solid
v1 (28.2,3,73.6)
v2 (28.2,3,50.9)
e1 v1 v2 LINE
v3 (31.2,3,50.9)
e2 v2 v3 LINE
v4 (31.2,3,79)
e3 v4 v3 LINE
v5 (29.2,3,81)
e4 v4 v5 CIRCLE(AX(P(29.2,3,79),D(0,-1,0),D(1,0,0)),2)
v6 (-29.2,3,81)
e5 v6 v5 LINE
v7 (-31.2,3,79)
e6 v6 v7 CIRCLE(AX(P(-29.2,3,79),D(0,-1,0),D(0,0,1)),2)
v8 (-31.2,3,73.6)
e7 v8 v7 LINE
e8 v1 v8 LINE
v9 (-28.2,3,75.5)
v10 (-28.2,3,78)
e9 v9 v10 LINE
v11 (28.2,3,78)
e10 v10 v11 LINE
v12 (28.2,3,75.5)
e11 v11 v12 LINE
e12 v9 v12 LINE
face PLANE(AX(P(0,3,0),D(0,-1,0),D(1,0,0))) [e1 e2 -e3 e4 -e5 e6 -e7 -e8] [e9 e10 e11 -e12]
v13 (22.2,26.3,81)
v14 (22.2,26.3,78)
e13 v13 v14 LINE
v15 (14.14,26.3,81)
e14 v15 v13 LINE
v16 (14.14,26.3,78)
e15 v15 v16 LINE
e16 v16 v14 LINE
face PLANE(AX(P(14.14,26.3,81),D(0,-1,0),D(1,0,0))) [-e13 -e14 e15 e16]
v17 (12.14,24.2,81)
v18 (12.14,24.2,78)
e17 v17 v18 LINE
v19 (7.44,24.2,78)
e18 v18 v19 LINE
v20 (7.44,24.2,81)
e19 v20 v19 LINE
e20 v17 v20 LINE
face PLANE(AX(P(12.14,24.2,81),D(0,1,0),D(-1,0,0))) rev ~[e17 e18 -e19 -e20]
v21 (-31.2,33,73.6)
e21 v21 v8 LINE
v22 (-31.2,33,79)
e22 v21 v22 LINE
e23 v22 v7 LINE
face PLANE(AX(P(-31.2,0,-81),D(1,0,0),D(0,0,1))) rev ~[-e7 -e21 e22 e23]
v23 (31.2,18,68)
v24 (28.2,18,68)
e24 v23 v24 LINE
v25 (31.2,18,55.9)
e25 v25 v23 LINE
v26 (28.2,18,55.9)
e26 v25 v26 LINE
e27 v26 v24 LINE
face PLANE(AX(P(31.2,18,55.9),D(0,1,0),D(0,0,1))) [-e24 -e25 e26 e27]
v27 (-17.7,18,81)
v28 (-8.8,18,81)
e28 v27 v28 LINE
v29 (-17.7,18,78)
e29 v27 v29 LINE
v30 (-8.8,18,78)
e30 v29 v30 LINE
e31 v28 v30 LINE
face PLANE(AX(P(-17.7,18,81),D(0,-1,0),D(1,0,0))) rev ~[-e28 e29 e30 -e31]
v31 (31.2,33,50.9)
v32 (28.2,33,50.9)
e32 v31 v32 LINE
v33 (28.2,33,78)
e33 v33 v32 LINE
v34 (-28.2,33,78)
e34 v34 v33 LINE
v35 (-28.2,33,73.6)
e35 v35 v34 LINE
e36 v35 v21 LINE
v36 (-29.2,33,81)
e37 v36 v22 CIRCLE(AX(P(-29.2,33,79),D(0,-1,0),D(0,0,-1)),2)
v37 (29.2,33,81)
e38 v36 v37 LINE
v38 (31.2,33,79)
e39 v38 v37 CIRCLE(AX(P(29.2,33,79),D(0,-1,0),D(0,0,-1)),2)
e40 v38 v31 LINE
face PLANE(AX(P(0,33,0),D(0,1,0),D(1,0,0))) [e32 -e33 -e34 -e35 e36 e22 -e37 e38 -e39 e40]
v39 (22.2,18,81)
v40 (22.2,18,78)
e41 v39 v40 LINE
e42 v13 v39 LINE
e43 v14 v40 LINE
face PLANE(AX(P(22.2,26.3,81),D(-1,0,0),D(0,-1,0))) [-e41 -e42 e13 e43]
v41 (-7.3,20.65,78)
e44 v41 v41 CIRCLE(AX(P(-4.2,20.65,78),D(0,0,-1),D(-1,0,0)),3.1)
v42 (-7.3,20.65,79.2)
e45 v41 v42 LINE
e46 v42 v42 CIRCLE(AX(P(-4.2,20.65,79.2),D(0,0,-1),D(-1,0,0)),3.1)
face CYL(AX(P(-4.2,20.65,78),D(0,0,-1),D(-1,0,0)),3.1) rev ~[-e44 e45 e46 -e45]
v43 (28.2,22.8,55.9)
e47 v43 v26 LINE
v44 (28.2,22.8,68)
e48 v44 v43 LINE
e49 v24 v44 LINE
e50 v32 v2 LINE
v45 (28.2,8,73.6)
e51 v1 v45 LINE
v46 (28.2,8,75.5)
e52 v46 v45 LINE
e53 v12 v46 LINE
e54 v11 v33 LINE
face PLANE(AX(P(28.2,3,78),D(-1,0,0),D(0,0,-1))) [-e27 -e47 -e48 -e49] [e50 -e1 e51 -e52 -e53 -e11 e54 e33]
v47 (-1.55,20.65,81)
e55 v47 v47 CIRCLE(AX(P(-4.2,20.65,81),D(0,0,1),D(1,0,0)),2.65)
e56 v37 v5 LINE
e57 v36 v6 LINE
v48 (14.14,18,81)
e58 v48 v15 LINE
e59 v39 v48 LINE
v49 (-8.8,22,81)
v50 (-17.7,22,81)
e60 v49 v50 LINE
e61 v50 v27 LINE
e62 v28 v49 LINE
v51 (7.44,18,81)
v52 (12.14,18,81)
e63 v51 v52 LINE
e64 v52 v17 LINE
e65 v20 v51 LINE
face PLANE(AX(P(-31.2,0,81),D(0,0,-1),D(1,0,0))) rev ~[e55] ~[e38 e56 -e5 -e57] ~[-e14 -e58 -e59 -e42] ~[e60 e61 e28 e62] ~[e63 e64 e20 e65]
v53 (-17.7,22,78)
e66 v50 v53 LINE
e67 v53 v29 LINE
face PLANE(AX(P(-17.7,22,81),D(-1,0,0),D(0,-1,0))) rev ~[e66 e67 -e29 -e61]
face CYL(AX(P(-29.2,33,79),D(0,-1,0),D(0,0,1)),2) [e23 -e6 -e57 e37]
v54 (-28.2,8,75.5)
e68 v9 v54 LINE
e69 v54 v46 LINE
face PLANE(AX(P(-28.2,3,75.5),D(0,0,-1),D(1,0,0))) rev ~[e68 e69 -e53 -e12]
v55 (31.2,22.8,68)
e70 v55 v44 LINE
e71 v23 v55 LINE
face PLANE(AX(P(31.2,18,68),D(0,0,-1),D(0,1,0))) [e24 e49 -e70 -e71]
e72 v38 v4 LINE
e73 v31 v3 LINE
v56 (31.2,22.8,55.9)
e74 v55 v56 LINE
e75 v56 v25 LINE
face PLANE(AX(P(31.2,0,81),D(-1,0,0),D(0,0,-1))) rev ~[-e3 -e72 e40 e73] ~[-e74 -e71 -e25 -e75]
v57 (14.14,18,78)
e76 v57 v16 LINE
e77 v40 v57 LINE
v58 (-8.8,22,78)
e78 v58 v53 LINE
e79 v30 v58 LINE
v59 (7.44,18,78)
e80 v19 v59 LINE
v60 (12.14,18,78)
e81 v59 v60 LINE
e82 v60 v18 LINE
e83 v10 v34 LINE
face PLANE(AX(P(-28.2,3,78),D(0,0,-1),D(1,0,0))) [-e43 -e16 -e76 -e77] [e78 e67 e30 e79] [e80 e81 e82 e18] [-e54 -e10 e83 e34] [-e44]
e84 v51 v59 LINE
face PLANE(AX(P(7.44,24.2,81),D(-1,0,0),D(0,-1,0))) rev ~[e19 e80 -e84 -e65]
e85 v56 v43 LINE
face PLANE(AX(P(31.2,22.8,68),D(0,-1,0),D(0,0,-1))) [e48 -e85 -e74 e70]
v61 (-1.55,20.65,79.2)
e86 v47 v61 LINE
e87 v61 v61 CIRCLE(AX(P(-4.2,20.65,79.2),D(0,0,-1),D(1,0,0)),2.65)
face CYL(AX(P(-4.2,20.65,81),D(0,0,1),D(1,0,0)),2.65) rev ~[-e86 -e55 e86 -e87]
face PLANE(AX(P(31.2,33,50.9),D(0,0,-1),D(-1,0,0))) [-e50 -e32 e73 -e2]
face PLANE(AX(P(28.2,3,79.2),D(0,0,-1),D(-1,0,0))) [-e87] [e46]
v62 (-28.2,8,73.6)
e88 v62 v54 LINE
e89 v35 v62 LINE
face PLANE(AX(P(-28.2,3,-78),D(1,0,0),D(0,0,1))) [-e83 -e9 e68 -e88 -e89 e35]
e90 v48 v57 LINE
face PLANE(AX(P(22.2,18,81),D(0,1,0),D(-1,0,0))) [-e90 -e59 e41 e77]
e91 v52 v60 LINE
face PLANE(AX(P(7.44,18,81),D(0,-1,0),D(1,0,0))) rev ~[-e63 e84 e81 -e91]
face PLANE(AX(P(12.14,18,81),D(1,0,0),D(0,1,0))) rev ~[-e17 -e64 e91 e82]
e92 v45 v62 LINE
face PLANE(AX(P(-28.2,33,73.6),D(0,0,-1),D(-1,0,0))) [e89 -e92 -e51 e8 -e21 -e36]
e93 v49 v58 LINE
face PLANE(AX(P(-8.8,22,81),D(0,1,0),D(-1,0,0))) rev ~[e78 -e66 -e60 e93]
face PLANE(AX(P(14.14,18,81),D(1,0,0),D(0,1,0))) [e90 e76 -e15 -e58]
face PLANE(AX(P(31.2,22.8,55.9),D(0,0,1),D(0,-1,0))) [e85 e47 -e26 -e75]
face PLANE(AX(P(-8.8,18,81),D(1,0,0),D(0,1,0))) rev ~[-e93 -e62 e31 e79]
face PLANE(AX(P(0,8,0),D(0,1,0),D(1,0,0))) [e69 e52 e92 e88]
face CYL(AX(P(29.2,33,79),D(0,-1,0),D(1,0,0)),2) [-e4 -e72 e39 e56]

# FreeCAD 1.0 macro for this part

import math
import FreeCAD as App
import Part
import Sketcher

V = App.Vector


def edges_at(feature, points):
    """Names of the edges that pass closest to the given points."""
    edges = feature.Shape.Edges
    near = lambda p: min(range(len(edges)), key=lambda i: edges[i].distToShape(Part.Vertex(*p))[0])
    return sorted({f"Edge{near(p) + 1}" for p in points})


def add_polygon(sketch, points):
    """Adds a closed chain of lines whose ends are joined by coincident constraints."""
    first, n = sketch.GeometryCount, len(points)
    for a, b in zip(points, points[1:] + points[:1]):
        sketch.addGeometry(Part.LineSegment(App.Vector(*a, 0), App.Vector(*b, 0)), False)
    for i in range(n):
        sketch.addConstraint(Sketcher.Constraint("Coincident", first + i, 2, first + (i + 1) % n, 1))

doc = App.newDocument("Part")
params = doc.addObject("Spreadsheet::Sheet", "Params")
for row, (alias, value) in enumerate([
    ("sketch1_height", "162 mm"),
    ("sketch1_width", "62.4 mm"),
    ("pad1_length", "3 mm"),
    ("sketch2_height", "162 mm"),
    ("sketch2_width", "62.4 mm"),
    ("pad2_length", "30 mm"),
    ("fillet_radius", "2 mm"),
    ("sketch3_height", "1.9 mm"),
    ("sketch3_height2", "2.5 mm"),
    ("sketch3_width", "39.2 mm"),
    ("pad3_length", "5 mm"),
    ("sketch4_width", "2 mm"),
    ("sketch4_width2", "16.6 mm"),
    ("sketch4_width3", "10.5 mm"),
    ("sketch4_height", "36.5 mm"),
    ("sketch4_height2", "18.6 mm"),
    ("pad4_length", "1 mm"),
    ("sketch5_diameter", "5.3 mm"),
    ("sketch5_height", "4 mm"),
    ("sketch5_width", "8.9 mm"),
    ("sketch5_width2", "4.7 mm"),
    ("sketch5_height2", "8.3 mm"),
    ("pocket1_length", "3 mm"),
    ("sketch6_diameter", "6.2 mm"),
    ("sketch6_diameter2", "5.3 mm"),
    ("pocket2_length", "1.2 mm"),
    ("sketch7_height", "9.6 mm"),
    ("sketch7_width", "56.4 mm"),
    ("pad5_length", "6 mm"),
    ("sketch8_width", "3 mm"),
    ("sketch8_height", "3.4 mm"),
    ("pocket3_length", "56.4 mm"),
    ("fillet2_radius", "1 mm"),
    ("sketch9_width", "4.8 mm"),
    ("sketch9_height", "12.1 mm"),
    ("pocket4_length", "3 mm"),
    ("sketch10_height", "200 mm"),
    ("sketch10_width", "3 mm"),
    ("sketch10_width2", "62.4 mm"),
    ("sketch10_height2", "222.7 mm"),
    ("sketch11_radius", "2 mm"),
    ("sketch11_width", "3 mm"),
    ("sketch11_width2", "59.4 mm"),
    ("sketch11_height", "22.7 mm"),
    ("sketch11_height2", "28.1 mm"),
    ("pocket6_length", "3 mm"),
], start=1):
    params.set(f"A{row}", alias)
    params.set(f"B{row}", "=" + value)
    params.setAlias(f"B{row}", alias)

body = doc.addObject("PartDesign::Body", "Body")

sketch1 = body.newObject("Sketcher::SketchObject", "Sketch")
sketch1.AttachmentSupport = (doc.getObject("XZ_Plane"), [""])
sketch1.MapMode = "FlatFace"
add_polygon(sketch1, [(31, 81), (31, -81), (-31, -81), (-31, 81)])
sketch1.addConstraint(Sketcher.Constraint("Vertical", 0))
sketch1.addConstraint(Sketcher.Constraint("Horizontal", 1))
sketch1.addConstraint(Sketcher.Constraint("Vertical", 2))
sketch1.addConstraint(Sketcher.Constraint("Horizontal", 3))
sketch1.addConstraint(Sketcher.Constraint("Symmetric", 0, 2, 2, 2, -1, 1))
sketch1.addConstraint(Sketcher.Constraint("DistanceY", 0, 2, 0, 1, 162.0))
sketch1.addConstraint(Sketcher.Constraint("DistanceX", 1, 2, 1, 1, 62.4))
sketch1.setExpression("Constraints[9]", "Params.sketch1_height")
sketch1.setExpression("Constraints[10]", "Params.sketch1_width")
pad1 = body.newObject("PartDesign::Pad", "Pad")
pad1.Profile = sketch1
pad1.setExpression("Length", "Params.pad1_length")
pad1.Reversed = True

sketch2 = body.newObject("Sketcher::SketchObject", "Sketch001")
sketch2.AttachmentSupport = (doc.getObject("XZ_Plane"), [""])
sketch2.MapMode = "FlatFace"
sketch2.AttachmentOffset = App.Placement(V(0, 0, -3), App.Rotation())
add_polygon(sketch2, [(31, -81), (-31, -81), (-31, 81), (31, 81)])
add_polygon(sketch2, [(-28, -78), (28, -78), (28, 78), (-28, 78)])
sketch2.addConstraint(Sketcher.Constraint("Horizontal", 0))
sketch2.addConstraint(Sketcher.Constraint("Vertical", 1))
sketch2.addConstraint(Sketcher.Constraint("Horizontal", 2))
sketch2.addConstraint(Sketcher.Constraint("Vertical", 3))
sketch2.addConstraint(Sketcher.Constraint("Horizontal", 4))
sketch2.addConstraint(Sketcher.Constraint("Vertical", 5))
sketch2.addConstraint(Sketcher.Constraint("Horizontal", 6))
sketch2.addConstraint(Sketcher.Constraint("Vertical", 7))
sketch2.addConstraint(Sketcher.Constraint("Symmetric", 0, 2, 2, 2, -1, 1))
sketch2.addConstraint(Sketcher.Constraint("Symmetric", 4, 2, 6, 2, -1, 1))
sketch2.addConstraint(Sketcher.Constraint("DistanceX", 4, 2, 3, 2, 3.0))
sketch2.addConstraint(Sketcher.Constraint("DistanceY", 3, 2, 4, 2, 3.0))
sketch2.addConstraint(Sketcher.Constraint("DistanceY", 1, 1, 1, 2, 162.0))
sketch2.addConstraint(Sketcher.Constraint("DistanceX", 0, 2, 0, 1, 62.4))
sketch2.setExpression("Constraints[20]", "Params.sketch2_height")
sketch2.setExpression("Constraints[21]", "Params.sketch2_width")
pad2 = body.newObject("PartDesign::Pad", "Pad001")
pad2.Profile = sketch2
pad2.setExpression("Length", "Params.pad2_length")
pad2.Reversed = True
doc.recompute()

fillet = body.newObject("PartDesign::Fillet", "Fillet")
fillet.Base = (pad2, edges_at(pad2, [
    (31.2, 16.5, 81),
    (31.2, 16.5, -81),
    (-31.2, 16.5, 81),
    (-31.2, 16.5, -81),
]))
fillet.setExpression("Radius", "Params.fillet_radius")

sketch3 = body.newObject("Sketcher::SketchObject", "Sketch002")
sketch3.AttachmentSupport = (doc.getObject("XZ_Plane"), [""])
sketch3.MapMode = "FlatFace"
sketch3.AttachmentOffset = App.Placement(V(0, 0, -3), App.Rotation())
add_polygon(sketch3, [(28.2, -37.2), (28.2, -39.1), (-11, -39.1), (-11, -32.8), (28.2, -32.8), (28.2, -34.7), (-9, -34.7), (-9, -37.2)])
add_polygon(sketch3, [(28.2, 73.6), (-28.2, 73.6), (-28.2, 75.5), (28.2, 75.5)])
sketch3.addConstraint(Sketcher.Constraint("Vertical", 0))
sketch3.addConstraint(Sketcher.Constraint("Horizontal", 1))
sketch3.addConstraint(Sketcher.Constraint("Vertical", 2))
sketch3.addConstraint(Sketcher.Constraint("Horizontal", 3))
sketch3.addConstraint(Sketcher.Constraint("Vertical", 4))
sketch3.addConstraint(Sketcher.Constraint("Horizontal", 5))
sketch3.addConstraint(Sketcher.Constraint("Vertical", 6))
sketch3.addConstraint(Sketcher.Constraint("Horizontal", 7))
sketch3.addConstraint(Sketcher.Constraint("Horizontal", 8))
sketch3.addConstraint(Sketcher.Constraint("Vertical", 9))
sketch3.addConstraint(Sketcher.Constraint("Horizontal", 10))
sketch3.addConstraint(Sketcher.Constraint("Vertical", 11))
sketch3.addConstraint(Sketcher.Constraint("Vertical", 0, 2, 3, 2))
sketch3.addConstraint(Sketcher.Constraint("Vertical", 7, 2, 10, 2))
sketch3.addConstraint(Sketcher.Constraint("Equal", 0, 4))
sketch3.addConstraint(Sketcher.Constraint("Equal", 4, 9))
sketch3.addConstraint(Sketcher.Constraint("DistanceY", 0, 2, 0, 1, 1.9))
sketch3.addConstraint(Sketcher.Constraint("DistanceY", 6, 2, 6, 1, 2.5))
sketch3.addConstraint(Sketcher.Constraint("DistanceX", 2, 2, 5, 2, 2.0))
sketch3.addConstraint(Sketcher.Constraint("DistanceX", 8, 2, 2, 2, 17.2))
sketch3.addConstraint(Sketcher.Constraint("DistanceY", 2, 2, 8, 2, 106.4))
sketch3.addConstraint(Sketcher.Constraint("DistanceX", 1, 2, 1, 1, 39.2))
sketch3.addConstraint(Sketcher.Constraint("DistanceX", 1, 2, -1, 1, 11.0))
sketch3.addConstraint(Sketcher.Constraint("DistanceY", 0, 2, -1, 1, 39.1))
sketch3.setExpression("Constraints[28]", "Params.sketch3_height")
sketch3.setExpression("Constraints[29]", "Params.sketch3_height2")
sketch3.setExpression("Constraints[33]", "Params.sketch3_width")
pad3 = body.newObject("PartDesign::Pad", "Pad002")
pad3.Profile = sketch3
pad3.setExpression("Length", "Params.pad3_length")
pad3.Reversed = True

sketch4 = body.newObject("Sketcher::SketchObject", "Sketch003")
sketch4.AttachmentSupport = (doc.getObject("XZ_Plane"), [""])
sketch4.MapMode = "FlatFace"
sketch4.AttachmentOffset = App.Placement(V(0, 0, -3), App.Rotation())
add_polygon(sketch4, [(-28.2, -55), (-11, -55), (-11, -39.1), (-9, -39.1), (-9, -75.6), (7.6, -75.6), (7.6, -39.1), (9.6, -39.1), (9.6, -75.6), (26.2, -75.6), (26.2, -39.1), (28.2, -39.1), (28.2, -78), (-28.2, -78)])
add_polygon(sketch4, [(-21.5, -75.6), (-11, -75.6), (-11, -57), (-21.5, -57)])
sketch4.addConstraint(Sketcher.Constraint("Horizontal", 0))
sketch4.addConstraint(Sketcher.Constraint("Vertical", 1))
sketch4.addConstraint(Sketcher.Constraint("Horizontal", 2))
sketch4.addConstraint(Sketcher.Constraint("Vertical", 3))
sketch4.addConstraint(Sketcher.Constraint("Horizontal", 4))
sketch4.addConstraint(Sketcher.Constraint("Vertical", 5))
sketch4.addConstraint(Sketcher.Constraint("Horizontal", 6))
sketch4.addConstraint(Sketcher.Constraint("Vertical", 7))
sketch4.addConstraint(Sketcher.Constraint("Horizontal", 8))
sketch4.addConstraint(Sketcher.Constraint("Vertical", 9))
sketch4.addConstraint(Sketcher.Constraint("Horizontal", 10))
sketch4.addConstraint(Sketcher.Constraint("Vertical", 11))
sketch4.addConstraint(Sketcher.Constraint("Horizontal", 12))
sketch4.addConstraint(Sketcher.Constraint("Vertical", 13))
sketch4.addConstraint(Sketcher.Constraint("Horizontal", 14))
sketch4.addConstraint(Sketcher.Constraint("Vertical", 15))
sketch4.addConstraint(Sketcher.Constraint("Horizontal", 16))
sketch4.addConstraint(Sketcher.Constraint("Vertical", 17))
sketch4.addConstraint(Sketcher.Constraint("Horizontal", 2, 2, 5, 2))
sketch4.addConstraint(Sketcher.Constraint("Horizontal", 4, 2, 7, 2))
sketch4.addConstraint(Sketcher.Constraint("Horizontal", 6, 2, 9, 2))
sketch4.addConstraint(Sketcher.Constraint("Horizontal", 8, 2, 14, 2))
sketch4.addConstraint(Sketcher.Constraint("Vertical", 1, 2, 14, 2))
sketch4.addConstraint(Sketcher.Constraint("Equal", 2, 6))
sketch4.addConstraint(Sketcher.Constraint("Equal", 4, 8))
sketch4.addConstraint(Sketcher.Constraint("Equal", 6, 10))
sketch4.addConstraint(Sketcher.Constraint("DistanceX", 2, 1, 2, 2, 2.0))
sketch4.addConstraint(Sketcher.Constraint("DistanceX", 4, 1, 4, 2, 16.6))
sketch4.addConstraint(Sketcher.Constraint("DistanceX", 14, 1, 14, 2, 10.5))
sketch4.addConstraint(Sketcher.Constraint("DistanceY", 3, 2, 3, 1, 36.5))
sketch4.addConstraint(Sketcher.Constraint("DistanceY", 15, 1, 15, 2, 18.6))
sketch4.addConstraint(Sketcher.Constraint("DistanceY", 15, 2, 0, 2, 2.0))
sketch4.addConstraint(Sketcher.Constraint("DistanceY", 11, 2, 8, 2, 2.4))
sketch4.addConstraint(Sketcher.Constraint("DistanceX", 0, 1, 0, 2, 17.2))
sketch4.addConstraint(Sketcher.Constraint("DistanceX", 0, 2, -1, 1, 11.0))
sketch4.addConstraint(Sketcher.Constraint("DistanceY", 0, 2, -1, 1, 55.0))
sketch4.setExpression("Constraints[44]", "Params.sketch4_width")
sketch4.setExpression("Constraints[45]", "Params.sketch4_width2")
sketch4.setExpression("Constraints[46]", "Params.sketch4_width3")
sketch4.setExpression("Constraints[47]", "Params.sketch4_height")
sketch4.setExpression("Constraints[48]", "Params.sketch4_height2")
pad4 = body.newObject("PartDesign::Pad", "Pad003")
pad4.Profile = sketch4
pad4.setExpression("Length", "Params.pad4_length")
pad4.Reversed = True

sketch5 = body.newObject("Sketcher::SketchObject", "Sketch004")
sketch5.AttachmentSupport = (doc.getObject("XY_Plane"), [""])
sketch5.MapMode = "FlatFace"
sketch5.AttachmentOffset = App.Placement(V(0, 0, 81), App.Rotation())
add_polygon(sketch5, [(-17.7, 22), (-17.7, 18), (-8.8, 18), (-8.8, 22)])
add_polygon(sketch5, [(14.1, 18), (22.2, 18), (22.2, 26.3), (14.1, 26.3)])
sketch5.addGeometry(Part.Circle(V(-4.2, 20.6, 0), V(0, 0, 1), 2.6), False)
add_polygon(sketch5, [(7.4, 24.2), (7.4, 18), (12.1, 18), (12.1, 24.2)])
sketch5.addConstraint(Sketcher.Constraint("Vertical", 0))
sketch5.addConstraint(Sketcher.Constraint("Horizontal", 1))
sketch5.addConstraint(Sketcher.Constraint("Vertical", 2))
sketch5.addConstraint(Sketcher.Constraint("Horizontal", 3))
sketch5.addConstraint(Sketcher.Constraint("Horizontal", 4))
sketch5.addConstraint(Sketcher.Constraint("Vertical", 5))
sketch5.addConstraint(Sketcher.Constraint("Horizontal", 6))
sketch5.addConstraint(Sketcher.Constraint("Vertical", 7))
sketch5.addConstraint(Sketcher.Constraint("Vertical", 9))
sketch5.addConstraint(Sketcher.Constraint("Horizontal", 10))
sketch5.addConstraint(Sketcher.Constraint("Vertical", 11))
sketch5.addConstraint(Sketcher.Constraint("Horizontal", 12))
sketch5.addConstraint(Sketcher.Constraint("Horizontal", 1, 2, 4, 2))
sketch5.addConstraint(Sketcher.Constraint("Horizontal", 7, 2, 9, 2))
sketch5.addConstraint(Sketcher.Constraint("Diameter", 8, 5.3))
sketch5.addConstraint(Sketcher.Constraint("DistanceY", 0, 2, 0, 1, 4.0))
sketch5.addConstraint(Sketcher.Constraint("DistanceX", 1, 1, 1, 2, 8.9))
sketch5.addConstraint(Sketcher.Constraint("DistanceX", 10, 1, 10, 2, 4.7))
sketch5.addConstraint(Sketcher.Constraint("DistanceY", 5, 1, 5, 2, 8.3))
sketch5.addConstraint(Sketcher.Constraint("DistanceY", 9, 2, 9, 1, 6.2))
sketch5.addConstraint(Sketcher.Constraint("DistanceY", -1, 1, 0, 2, 18.0))
sketch5.addConstraint(Sketcher.Constraint("DistanceX", 10, 2, 7, 2, 2.0))
sketch5.addConstraint(Sketcher.Constraint("DistanceX", 4, 1, 4, 2, 8.06))
sketch5.addConstraint(Sketcher.Constraint("DistanceX", 0, 2, 8, 3, 13.5))
sketch5.addConstraint(Sketcher.Constraint("DistanceX", 1, 2, 4, 2, 31.0))
sketch5.addConstraint(Sketcher.Constraint("DistanceX", 8, 3, -1, 1, 4.2))
sketch5.addConstraint(Sketcher.Constraint("DistanceY", -1, 1, 8, 3, 20.65))
sketch5.setExpression("Constraints[26]", "Params.sketch5_diameter")
sketch5.setExpression("Constraints[27]", "Params.sketch5_height")
sketch5.setExpression("Constraints[28]", "Params.sketch5_width")
sketch5.setExpression("Constraints[29]", "Params.sketch5_width2")
sketch5.setExpression("Constraints[30]", "Params.sketch5_height2")
pocket1 = body.newObject("PartDesign::Pocket", "Pocket")
pocket1.Profile = sketch5
pocket1.setExpression("Length", "Params.pocket1_length")

sketch6 = body.newObject("Sketcher::SketchObject", "Sketch005")
sketch6.AttachmentSupport = (doc.getObject("XY_Plane"), [""])
sketch6.MapMode = "FlatFace"
sketch6.AttachmentOffset = App.Placement(V(0, 0, 78), App.Rotation())
sketch6.addGeometry(Part.Circle(V(-4.2, 20.6, 0), V(0, 0, 1), 3.1), False)
sketch6.addGeometry(Part.Circle(V(-4.2, 20.6, 0), V(0, 0, 1), 2.6), False)
sketch6.addConstraint(Sketcher.Constraint("Coincident", 1, 3, 0, 3))
sketch6.addConstraint(Sketcher.Constraint("Diameter", 0, 6.2))
sketch6.addConstraint(Sketcher.Constraint("Diameter", 1, 5.3))
sketch6.addConstraint(Sketcher.Constraint("DistanceX", 0, 3, -1, 1, 4.2))
sketch6.addConstraint(Sketcher.Constraint("DistanceY", -1, 1, 0, 3, 20.65))
sketch6.setExpression("Constraints[1]", "Params.sketch6_diameter")
sketch6.setExpression("Constraints[2]", "Params.sketch6_diameter2")
pocket2 = body.newObject("PartDesign::Pocket", "Pocket001")
pocket2.Profile = sketch6
pocket2.setExpression("Length", "Params.pocket2_length")
pocket2.Reversed = True

sketch7 = body.newObject("Sketcher::SketchObject", "Sketch006")
sketch7.AttachmentSupport = (doc.getObject("XY_Plane"), [""])
sketch7.MapMode = "FlatFace"
sketch7.AttachmentOffset = App.Placement(V(0, 0, -81), App.Rotation())
add_polygon(sketch7, [(-28, 23), (28, 23), (28, 13), (-28, 13)])
sketch7.addConstraint(Sketcher.Constraint("Horizontal", 0))
sketch7.addConstraint(Sketcher.Constraint("Vertical", 1))
sketch7.addConstraint(Sketcher.Constraint("Horizontal", 2))
sketch7.addConstraint(Sketcher.Constraint("Vertical", 3))
sketch7.addConstraint(Sketcher.Constraint("DistanceY", 1, 2, 1, 1, 9.6))
sketch7.addConstraint(Sketcher.Constraint("DistanceY", -1, 1, 0, 2, 23.0))
sketch7.addConstraint(Sketcher.Constraint("DistanceX", 0, 1, 0, 2, 56.4))
sketch7.addConstraint(Sketcher.Constraint("DistanceX", -1, 1, 0, 2, 28.2))
sketch7.setExpression("Constraints[8]", "Params.sketch7_height")
sketch7.setExpression("Constraints[10]", "Params.sketch7_width")
pad5 = body.newObject("PartDesign::Pad", "Pad004")
pad5.Profile = sketch7
pad5.setExpression("Length", "Params.pad5_length")
pad5.Reversed = True

sketch8 = body.newObject("Sketcher::SketchObject", "Sketch007")
sketch8.AttachmentSupport = (doc.getObject("YZ_Plane"), [""])
sketch8.MapMode = "FlatFace"
sketch8.AttachmentOffset = App.Placement(V(0, 0, -28.2), App.Rotation())
add_polygon(sketch8, [(20, -81), (23, -81), (23, -84.4), (20, -84.4)])
add_polygon(sketch8, [(13.4, -81), (16.4, -81), (16.4, -84.4), (13.4, -84.4)])
sketch8.addConstraint(Sketcher.Constraint("Horizontal", 0))
sketch8.addConstraint(Sketcher.Constraint("Vertical", 1))
sketch8.addConstraint(Sketcher.Constraint("Horizontal", 2))
sketch8.addConstraint(Sketcher.Constraint("Vertical", 3))
sketch8.addConstraint(Sketcher.Constraint("Horizontal", 4))
sketch8.addConstraint(Sketcher.Constraint("Vertical", 5))
sketch8.addConstraint(Sketcher.Constraint("Horizontal", 6))
sketch8.addConstraint(Sketcher.Constraint("Vertical", 7))
sketch8.addConstraint(Sketcher.Constraint("Horizontal", 3, 2, 4, 2))
sketch8.addConstraint(Sketcher.Constraint("Horizontal", 2, 2, 5, 2))
sketch8.addConstraint(Sketcher.Constraint("Equal", 2, 4))
sketch8.addConstraint(Sketcher.Constraint("DistanceX", 0, 1, 0, 2, 3.0))
sketch8.addConstraint(Sketcher.Constraint("DistanceY", 1, 2, 1, 1, 3.4))
sketch8.addConstraint(Sketcher.Constraint("DistanceX", -1, 1, 0, 2, 23.0))
sketch8.addConstraint(Sketcher.Constraint("DistanceY", 0, 2, -1, 1, 81.0))
sketch8.addConstraint(Sketcher.Constraint("DistanceX", -1, 1, 4, 2, 16.4))
sketch8.setExpression("Constraints[19]", "Params.sketch8_width")
sketch8.setExpression("Constraints[20]", "Params.sketch8_height")
pocket3 = body.newObject("PartDesign::Pocket", "Pocket002")
pocket3.Profile = sketch8
pocket3.setExpression("Length", "Params.pocket3_length")
pocket3.Reversed = True
doc.recompute()

fillet2 = body.newObject("PartDesign::Fillet", "Fillet001")
fillet2.Base = (pocket3, edges_at(pocket3, [
    (0, 23, -87),
    (0, 23, -84.4),
    (0, 13.4, -87),
    (0, 13.4, -84.4),
    (-28.2, 16.4, -82.7),
    (-28.2, 20, -82.7),
    (28.2, 16.4, -82.7),
    (28.2, 20, -82.7),
    (-28.2, 18.2, -87),
    (-28.2, 21.5, -84.4),
    (-28.2, 14.9, -84.4),
    (-28.2, 23, -85.7),
    (-28.2, 13.4, -85.7),
    (28.2, 23, -85.7),
    (28.2, 13.4, -85.7),
    (28.2, 14.9, -84.4),
    (28.2, 18.2, -87),
    (28.2, 21.5, -84.4),
]))
fillet2.setExpression("Radius", "Params.fillet2_radius")

sketch9 = body.newObject("Sketcher::SketchObject", "Sketch008")
sketch9.AttachmentSupport = (doc.getObject("YZ_Plane"), [""])
sketch9.MapMode = "FlatFace"
sketch9.AttachmentOffset = App.Placement(V(0, 0, 31.2), App.Rotation())
add_polygon(sketch9, [(22.8, 55.9), (22.8, 68), (18, 68), (18, 55.9)])
sketch9.addConstraint(Sketcher.Constraint("Vertical", 0))
sketch9.addConstraint(Sketcher.Constraint("Horizontal", 1))
sketch9.addConstraint(Sketcher.Constraint("Vertical", 2))
sketch9.addConstraint(Sketcher.Constraint("Horizontal", 3))
sketch9.addConstraint(Sketcher.Constraint("DistanceX", 1, 2, 1, 1, 4.8))
sketch9.addConstraint(Sketcher.Constraint("DistanceY", 0, 1, 0, 2, 12.1))
sketch9.addConstraint(Sketcher.Constraint("DistanceX", -1, 1, 1, 2, 18.0))
sketch9.addConstraint(Sketcher.Constraint("DistanceY", -1, 1, 0, 2, 68.0))
sketch9.setExpression("Constraints[8]", "Params.sketch9_width")
sketch9.setExpression("Constraints[9]", "Params.sketch9_height")
pocket4 = body.newObject("PartDesign::Pocket", "Pocket003")
pocket4.Profile = sketch9
pocket4.setExpression("Length", "Params.pocket4_length")

sketch10 = body.newObject("Sketcher::SketchObject", "Sketch009")
sketch10.AttachmentSupport = (doc.getObject("XZ_Plane"), [""])
sketch10.MapMode = "FlatFace"
sketch10.AttachmentOffset = App.Placement(V(0, 0, -33), App.Rotation())
add_polygon(sketch10, [(31.2, 50.9), (31.2, -149.1), (-31.2, -149.1), (-31.2, 73.6), (-28.2, 73.6), (-28.2, 50.9)])
sketch10.addConstraint(Sketcher.Constraint("Vertical", 0))
sketch10.addConstraint(Sketcher.Constraint("Horizontal", 1))
sketch10.addConstraint(Sketcher.Constraint("Vertical", 2))
sketch10.addConstraint(Sketcher.Constraint("Horizontal", 3))
sketch10.addConstraint(Sketcher.Constraint("Vertical", 4))
sketch10.addConstraint(Sketcher.Constraint("Horizontal", 5))
sketch10.addConstraint(Sketcher.Constraint("DistanceY", 0, 2, 0, 1, 200.0))
sketch10.addConstraint(Sketcher.Constraint("DistanceX", 3, 1, 3, 2, 3.0))
sketch10.addConstraint(Sketcher.Constraint("DistanceX", 1, 2, 1, 1, 62.4))
sketch10.addConstraint(Sketcher.Constraint("DistanceY", 2, 1, 2, 2, 222.7))
sketch10.addConstraint(Sketcher.Constraint("DistanceX", -1, 1, 0, 2, 31.2))
sketch10.addConstraint(Sketcher.Constraint("DistanceY", 0, 2, -1, 1, 149.1))
sketch10.setExpression("Constraints[12]", "Params.sketch10_height")
sketch10.setExpression("Constraints[13]", "Params.sketch10_width")
sketch10.setExpression("Constraints[14]", "Params.sketch10_width2")
sketch10.setExpression("Constraints[15]", "Params.sketch10_height2")
pocket5 = body.newObject("PartDesign::Pocket", "Pocket004")
pocket5.Profile = sketch10
pocket5.Type = "ThroughAll"
pocket5.Reversed = True

sketch11 = body.newObject("Sketcher::SketchObject", "Sketch010")
sketch11.AttachmentSupport = (doc.getObject("XZ_Plane"), [""])
sketch11.MapMode = "FlatFace"
sketch11.addGeometry(Part.LineSegment(V(-28.2, 73.6, 0), V(-28.2, 50.9, 0)), False)
sketch11.addGeometry(Part.LineSegment(V(-28.2, 50.9, 0), V(31.2, 50.9, 0)), False)
sketch11.addGeometry(Part.LineSegment(V(31.2, 50.9, 0), V(31.2, 79, 0)), False)
sketch11.addGeometry(Part.ArcOfCircle(Part.Circle(V(29.2, 79, 0), V(0, 0, 1), 2), math.radians(0), math.radians(90)), False)
sketch11.addGeometry(Part.LineSegment(V(29.2, 81, 0), V(-29.2, 81, 0)), False)
sketch11.addGeometry(Part.ArcOfCircle(Part.Circle(V(-29.2, 79, 0), V(0, 0, 1), 2), math.radians(90), math.radians(180)), False)
sketch11.addGeometry(Part.LineSegment(V(-31.2, 79, 0), V(-31.2, 73.6, 0)), False)
sketch11.addGeometry(Part.LineSegment(V(-31.2, 73.6, 0), V(-28.2, 73.6, 0)), False)
sketch11.addConstraint(Sketcher.Constraint("Coincident", 0, 2, 1, 1))
sketch11.addConstraint(Sketcher.Constraint("Coincident", 1, 2, 2, 1))
sketch11.addConstraint(Sketcher.Constraint("Tangent", 2, 2, 3, 1))
sketch11.addConstraint(Sketcher.Constraint("Tangent", 3, 2, 4, 1))
sketch11.addConstraint(Sketcher.Constraint("Tangent", 4, 2, 5, 1))
sketch11.addConstraint(Sketcher.Constraint("Tangent", 5, 2, 6, 1))
sketch11.addConstraint(Sketcher.Constraint("Coincident", 6, 2, 7, 1))
sketch11.addConstraint(Sketcher.Constraint("Coincident", 7, 2, 0, 1))
sketch11.addConstraint(Sketcher.Constraint("Vertical", 0))
sketch11.addConstraint(Sketcher.Constraint("Horizontal", 1))
sketch11.addConstraint(Sketcher.Constraint("Vertical", 2))
sketch11.addConstraint(Sketcher.Constraint("Horizontal", 4))
sketch11.addConstraint(Sketcher.Constraint("Vertical", 6))
sketch11.addConstraint(Sketcher.Constraint("Horizontal", 7))
sketch11.addConstraint(Sketcher.Constraint("Equal", 3, 5))
sketch11.addConstraint(Sketcher.Constraint("Radius", 3, 2.0))
sketch11.addConstraint(Sketcher.Constraint("DistanceX", 7, 1, 7, 2, 3.0))
sketch11.addConstraint(Sketcher.Constraint("DistanceX", 1, 1, 1, 2, 59.4))
sketch11.addConstraint(Sketcher.Constraint("DistanceY", 0, 2, 0, 1, 22.7))
sketch11.addConstraint(Sketcher.Constraint("DistanceY", 2, 1, 2, 2, 28.1))
sketch11.addConstraint(Sketcher.Constraint("DistanceY", -1, 1, 3, 3, 79.0))
sketch11.addConstraint(Sketcher.Constraint("DistanceX", -1, 1, 3, 3, 29.2))
sketch11.setExpression("Constraints[15]", "Params.sketch11_radius")
sketch11.setExpression("Constraints[16]", "Params.sketch11_width")
sketch11.setExpression("Constraints[17]", "Params.sketch11_width2")
sketch11.setExpression("Constraints[18]", "Params.sketch11_height")
sketch11.setExpression("Constraints[19]", "Params.sketch11_height2")
pocket6 = body.newObject("PartDesign::Pocket", "Pocket005")
pocket6.Profile = sketch11
pocket6.setExpression("Length", "Params.pocket6_length")

doc.recompute()
